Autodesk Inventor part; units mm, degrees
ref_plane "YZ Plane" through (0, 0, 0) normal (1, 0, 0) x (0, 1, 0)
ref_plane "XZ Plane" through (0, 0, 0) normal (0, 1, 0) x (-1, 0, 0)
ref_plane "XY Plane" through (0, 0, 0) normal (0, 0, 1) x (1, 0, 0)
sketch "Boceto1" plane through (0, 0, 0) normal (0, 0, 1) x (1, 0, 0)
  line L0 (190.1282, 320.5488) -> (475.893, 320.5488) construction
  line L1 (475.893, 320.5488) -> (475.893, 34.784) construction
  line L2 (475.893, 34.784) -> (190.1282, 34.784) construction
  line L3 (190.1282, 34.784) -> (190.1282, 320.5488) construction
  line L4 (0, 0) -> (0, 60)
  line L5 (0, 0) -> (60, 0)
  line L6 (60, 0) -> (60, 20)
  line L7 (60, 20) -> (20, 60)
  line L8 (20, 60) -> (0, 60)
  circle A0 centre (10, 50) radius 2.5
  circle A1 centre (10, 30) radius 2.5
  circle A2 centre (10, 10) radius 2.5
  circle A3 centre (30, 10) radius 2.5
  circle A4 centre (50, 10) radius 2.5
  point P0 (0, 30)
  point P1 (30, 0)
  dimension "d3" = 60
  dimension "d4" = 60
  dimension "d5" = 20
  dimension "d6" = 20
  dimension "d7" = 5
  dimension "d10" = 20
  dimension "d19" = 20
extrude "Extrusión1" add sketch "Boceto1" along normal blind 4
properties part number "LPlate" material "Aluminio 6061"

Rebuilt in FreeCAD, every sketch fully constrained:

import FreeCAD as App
import Part
import Sketcher

doc = App.newDocument("Part")
body = doc.addObject("PartDesign::Body", "Body")

sketch1 = body.newObject("Sketcher::SketchObject", "Sketch")
sketch1.AttachmentSupport = (doc.getObject("XY_Plane"), [""])
sketch1.MapMode = "FlatFace"
sketch1.addGeometry([
    Part.LineSegment(App.Vector(0, 60, 0), App.Vector(0, 0, 0)),
    Part.LineSegment(App.Vector(0, 0, 0), App.Vector(60, 0, 0)),
    Part.LineSegment(App.Vector(60, 0, 0), App.Vector(60, 20, 0)),
    Part.LineSegment(App.Vector(60, 20, 0), App.Vector(20, 60, 0)),
    Part.LineSegment(App.Vector(20, 60, 0), App.Vector(0, 60, 0)),
    Part.Circle(App.Vector(10, 10, 0), App.Vector(0, 0, 1), 2.5),
    Part.Circle(App.Vector(10, 30, 0), App.Vector(0, 0, 1), 2.5),
    Part.Circle(App.Vector(30, 10, 0), App.Vector(0, 0, 1), 2.5),
    Part.Circle(App.Vector(50, 10, 0), App.Vector(0, 0, 1), 2.5),
    Part.Circle(App.Vector(10, 50, 0), App.Vector(0, 0, 1), 2.5),
], False)
sketch1.addConstraint([
    Sketcher.Constraint("Coincident", 0, 2, 1, 1),
    Sketcher.Constraint("Coincident", 1, 2, 2, 1),
    Sketcher.Constraint("Coincident", 2, 2, 3, 1),
    Sketcher.Constraint("Coincident", 3, 2, 4, 1),
    Sketcher.Constraint("Coincident", 4, 2, 0, 1),
    Sketcher.Constraint("Vertical", 0),
    Sketcher.Constraint("Horizontal", 1),
    Sketcher.Constraint("Vertical", 2),
    Sketcher.Constraint("Horizontal", 4),
    Sketcher.Constraint("Coincident", 0, 2, -1, 1),
    Sketcher.Constraint("Equal", 5, 6),
    Sketcher.Constraint("Equal", 6, 7),
    Sketcher.Constraint("Equal", 7, 8),
    Sketcher.Constraint("Equal", 8, 9),
    Sketcher.Constraint("Horizontal", 5, 3, 7, 3),
    Sketcher.Constraint("Horizontal", 7, 3, 8, 3),
    Sketcher.Constraint("Vertical", 5, 3, 6, 3),
    Sketcher.Constraint("Vertical", 6, 3, 9, 3),
    Sketcher.Constraint("Equal", 1, 0),
    Sketcher.Constraint("Equal", 4, 2),
    Sketcher.Constraint("Diameter", 5, 5.0),
    Sketcher.Constraint("DistanceX", 1, 1, 1, 2, 60.0),
    Sketcher.Constraint("DistanceX", 4, 2, 4, 1, 20.0),
    Sketcher.Constraint("DistanceX", -1, 1, 5, 3, 10.0),
    Sketcher.Constraint("DistanceY", -1, 1, 5, 3, 10.0),
    Sketcher.Constraint("DistanceY", 5, 3, 6, 3, 20.0),
    Sketcher.Constraint("DistanceX", 5, 3, 7, 3, 20.0),
    Sketcher.Constraint("DistanceX", 7, 3, 8, 3, 20.0),
    Sketcher.Constraint("DistanceY", 6, 3, 9, 3, 20.0),
])
pad1 = body.newObject("PartDesign::Pad", "Pad")
pad1.Profile = sketch1
pad1.Length = 4

doc.recompute()
